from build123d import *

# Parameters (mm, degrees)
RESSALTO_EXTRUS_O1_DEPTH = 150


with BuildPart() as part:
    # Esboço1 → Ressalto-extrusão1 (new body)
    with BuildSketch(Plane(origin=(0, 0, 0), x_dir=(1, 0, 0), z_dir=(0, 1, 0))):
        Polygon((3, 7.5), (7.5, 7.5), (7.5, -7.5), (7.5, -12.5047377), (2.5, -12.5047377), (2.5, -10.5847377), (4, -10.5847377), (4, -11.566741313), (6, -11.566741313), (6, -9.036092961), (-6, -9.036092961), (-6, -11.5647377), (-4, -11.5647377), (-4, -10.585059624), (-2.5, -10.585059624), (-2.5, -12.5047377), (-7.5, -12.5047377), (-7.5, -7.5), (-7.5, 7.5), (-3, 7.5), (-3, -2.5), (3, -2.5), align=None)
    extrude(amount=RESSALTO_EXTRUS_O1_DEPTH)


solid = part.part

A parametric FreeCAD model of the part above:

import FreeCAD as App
import Part
import Sketcher
Q = App.Units.Quantity


def add_polygon(sketch, points):
    """Adds a closed chain of lines whose ends are joined by coincident constraints."""
    first, n = sketch.GeometryCount, len(points)
    for a, b in zip(points, points[1:] + points[:1]):
        sketch.addGeometry(Part.LineSegment(App.Vector(*a, 0), App.Vector(*b, 0)), False)
    for i in range(n):
        sketch.addConstraint(Sketcher.Constraint("Coincident", first + i, 2, first + (i + 1) % n, 1))

doc = App.newDocument("Part")
body = doc.addObject("PartDesign::Body", "Body")

# Sketch on XZ plane
sketch1 = doc.addObject("Sketcher::SketchObject", "Sketch")
body.addObject(sketch1)
sketch1.AttachmentSupport = (doc.XZ_Plane, [""])
sketch1.MapMode = "FlatFace"
add_polygon(sketch1, [(7.5, -7.5), (3, -7.5), (3, 2.5), (-3, 2.5), (-3, -7.5), (-7.5, -7.5), (-7.5, 12.5), (-2.5, 12.5), (-2.5, 10.6), (-4, 10.6), (-4, 11.6), (-6, 11.6), (-6, 9), (6, 9), (6, 11.6), (4, 11.6), (4, 10.6), (2.5, 10.6), (2.5, 12.5), (7.5, 12.5)])  # lines 0-19
sketch1.addConstraint(Sketcher.Constraint("Horizontal", 0))
sketch1.addConstraint(Sketcher.Constraint("Vertical", 1))
sketch1.addConstraint(Sketcher.Constraint("Horizontal", 2))
sketch1.addConstraint(Sketcher.Constraint("Vertical", 3))
sketch1.addConstraint(Sketcher.Constraint("Horizontal", 4))
sketch1.addConstraint(Sketcher.Constraint("Vertical", 5))
sketch1.addConstraint(Sketcher.Constraint("Horizontal", 6))
sketch1.addConstraint(Sketcher.Constraint("Vertical", 7))
sketch1.addConstraint(Sketcher.Constraint("Horizontal", 8))
sketch1.addConstraint(Sketcher.Constraint("Vertical", 9))
sketch1.addConstraint(Sketcher.Constraint("Horizontal", 10))
sketch1.addConstraint(Sketcher.Constraint("Vertical", 11))
sketch1.addConstraint(Sketcher.Constraint("Horizontal", 12))
sketch1.addConstraint(Sketcher.Constraint("Vertical", 13))
sketch1.addConstraint(Sketcher.Constraint("Horizontal", 14))
sketch1.addConstraint(Sketcher.Constraint("Vertical", 15))
sketch1.addConstraint(Sketcher.Constraint("Horizontal", 16))
sketch1.addConstraint(Sketcher.Constraint("Vertical", 17))
sketch1.addConstraint(Sketcher.Constraint("Horizontal", 18))
sketch1.addConstraint(Sketcher.Constraint("Vertical", 19))
sketch1.addConstraint(Sketcher.Constraint("Symmetric", 0, 2, 3, 2, -2))
sketch1.addConstraint(Sketcher.Constraint("Symmetric", 6, 2, 17, 2, -2))
sketch1.addConstraint(Sketcher.Constraint("Equal", 0, 4))
sketch1.addConstraint(Sketcher.Constraint("Equal", 10, 14))
sketch1.addConstraint(Sketcher.Constraint("Equal", 8, 16))
sketch1.addConstraint(Sketcher.Constraint("DistanceX", 2, 2, 2, 1, Q("6 mm")))
sketch1.addConstraint(Sketcher.Constraint("DistanceX", 6, 1, 6, 2, Q("5 mm")))
sketch1.addConstraint(Sketcher.Constraint("DistanceX", 10, 2, 10, 1, Q("2 mm")))
sketch1.addConstraint(Sketcher.Constraint("DistanceX", 12, 1, 12, 2, Q("12 mm")))
sketch1.addConstraint(Sketcher.Constraint("DistanceY", 1, 1, 1, 2, Q("10 mm")))
sketch1.addConstraint(Sketcher.Constraint("DistanceX", 0, 2, 0, 1, Q("4.5 mm")))
sketch1.addConstraint(Sketcher.Constraint("DistanceY", 17, 1, 17, 2, Q("1.92 mm")))
sketch1.addConstraint(Sketcher.Constraint("DistanceY", 0, 2, -1, 1, Q("7.5 mm")))
sketch1.addConstraint(Sketcher.Constraint("DistanceY", 9, 2, 6, 2, Q("0.94 mm")))
sketch1.addConstraint(Sketcher.Constraint("DistanceY", 7, 2, 7, 1, Q("1.919678 mm")))
sketch1.addConstraint(Sketcher.Constraint("DistanceY", 13, 1, 13, 2, Q("2.530648 mm")))
sketch1.addConstraint(Sketcher.Constraint("DistanceY", 5, 1, 5, 2, Q("20.004738 mm")))
sketch1.addConstraint(Sketcher.Constraint("DistanceY", 11, 2, 11, 1, Q("2.528645 mm")))
pad1 = doc.addObject("PartDesign::Pad", "Pad")
body.addObject(pad1)
pad1.Profile = sketch1
pad1.Length = 150
pad1.Reversed = True

doc.recompute()
